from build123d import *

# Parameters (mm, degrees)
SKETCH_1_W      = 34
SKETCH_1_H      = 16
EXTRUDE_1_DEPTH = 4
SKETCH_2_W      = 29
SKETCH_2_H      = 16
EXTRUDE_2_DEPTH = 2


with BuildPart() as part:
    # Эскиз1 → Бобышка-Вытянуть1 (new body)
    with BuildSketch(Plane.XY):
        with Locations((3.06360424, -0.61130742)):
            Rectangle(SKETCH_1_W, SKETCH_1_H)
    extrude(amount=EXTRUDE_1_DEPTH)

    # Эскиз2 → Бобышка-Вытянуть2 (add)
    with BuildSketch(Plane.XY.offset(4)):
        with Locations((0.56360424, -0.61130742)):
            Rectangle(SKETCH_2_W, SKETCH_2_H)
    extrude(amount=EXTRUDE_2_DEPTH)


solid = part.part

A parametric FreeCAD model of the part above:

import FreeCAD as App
import Part
import Sketcher

V = App.Vector
Q = App.Units.Quantity


def add_polygon(sketch, points):
    """Adds a closed chain of lines whose ends are joined by coincident constraints."""
    first, n = sketch.GeometryCount, len(points)
    for a, b in zip(points, points[1:] + points[:1]):
        sketch.addGeometry(Part.LineSegment(App.Vector(*a, 0), App.Vector(*b, 0)), False)
    for i in range(n):
        sketch.addConstraint(Sketcher.Constraint("Coincident", first + i, 2, first + (i + 1) % n, 1))

doc = App.newDocument("Part")
params = doc.addObject("Spreadsheet::Sheet", "Params")
for row, (alias, value) in enumerate([
    ("sketch1_width", "34 mm"),
    ("sketch1_height", "16 mm"),
    ("pad1_length", "4 mm"),
    ("sketch2_width", "29 mm"),
    ("sketch2_height", "16 mm"),
    ("pad2_length", "2 mm"),
], start=1):
    params.set(f"A{row}", alias)
    params.set(f"B{row}", "=" + value)
    params.setAlias(f"B{row}", alias)

body = doc.addObject("PartDesign::Body", "Body")

sketch1 = doc.addObject("Sketcher::SketchObject", "Sketch")
body.addObject(sketch1)
sketch1.AttachmentSupport = (doc.XY_Plane, [""])
sketch1.MapMode = "FlatFace"
add_polygon(sketch1, [(-14, 7), (-14, -9), (20, -9), (20, 7)])
sketch1.addConstraint([
    Sketcher.Constraint("Vertical", 0),
    Sketcher.Constraint("Horizontal", 1),
    Sketcher.Constraint("Vertical", 2),
    Sketcher.Constraint("Horizontal", 3),
    Sketcher.Constraint("DistanceX", 1, 1, 1, 2, Q("34 mm")),
    Sketcher.Constraint("DistanceY", 0, 2, 0, 1, Q("16 mm")),
    Sketcher.Constraint("DistanceX", 0, 2, -1, 1, Q("13.936396 mm")),
    Sketcher.Constraint("DistanceY", 0, 2, -1, 1, Q("8.611307 mm")),
])
sketch1.setExpression("Constraints[8]", "Params.sketch1_width")
sketch1.setExpression("Constraints[9]", "Params.sketch1_height")
pad1 = doc.addObject("PartDesign::Pad", "Pad")
body.addObject(pad1)
pad1.Profile = sketch1
pad1.setExpression("Length", "Params.pad1_length")

sketch2 = doc.addObject("Sketcher::SketchObject", "Sketch001")
body.addObject(sketch2)
sketch2.AttachmentSupport = (doc.XY_Plane, [""])
sketch2.MapMode = "FlatFace"
sketch2.AttachmentOffset = App.Placement(V(0, 0, 4), App.Rotation())
add_polygon(sketch2, [(-14, 7), (-14, -9), (15, -9), (15, 7)])
sketch2.addConstraint([
    Sketcher.Constraint("Vertical", 0),
    Sketcher.Constraint("Horizontal", 1),
    Sketcher.Constraint("Vertical", 2),
    Sketcher.Constraint("Horizontal", 3),
    Sketcher.Constraint("DistanceX", 1, 1, 1, 2, Q("29 mm")),
    Sketcher.Constraint("DistanceY", 0, 2, 0, 1, Q("16 mm")),
    Sketcher.Constraint("DistanceX", 0, 2, -1, 1, Q("13.936396 mm")),
    Sketcher.Constraint("DistanceY", 0, 2, -1, 1, Q("8.611307 mm")),
])
sketch2.setExpression("Constraints[8]", "Params.sketch2_width")
sketch2.setExpression("Constraints[9]", "Params.sketch2_height")
pad2 = doc.addObject("PartDesign::Pad", "Pad001")
body.addObject(pad2)
pad2.Profile = sketch2
pad2.setExpression("Length", "Params.pad2_length")

doc.recompute()
